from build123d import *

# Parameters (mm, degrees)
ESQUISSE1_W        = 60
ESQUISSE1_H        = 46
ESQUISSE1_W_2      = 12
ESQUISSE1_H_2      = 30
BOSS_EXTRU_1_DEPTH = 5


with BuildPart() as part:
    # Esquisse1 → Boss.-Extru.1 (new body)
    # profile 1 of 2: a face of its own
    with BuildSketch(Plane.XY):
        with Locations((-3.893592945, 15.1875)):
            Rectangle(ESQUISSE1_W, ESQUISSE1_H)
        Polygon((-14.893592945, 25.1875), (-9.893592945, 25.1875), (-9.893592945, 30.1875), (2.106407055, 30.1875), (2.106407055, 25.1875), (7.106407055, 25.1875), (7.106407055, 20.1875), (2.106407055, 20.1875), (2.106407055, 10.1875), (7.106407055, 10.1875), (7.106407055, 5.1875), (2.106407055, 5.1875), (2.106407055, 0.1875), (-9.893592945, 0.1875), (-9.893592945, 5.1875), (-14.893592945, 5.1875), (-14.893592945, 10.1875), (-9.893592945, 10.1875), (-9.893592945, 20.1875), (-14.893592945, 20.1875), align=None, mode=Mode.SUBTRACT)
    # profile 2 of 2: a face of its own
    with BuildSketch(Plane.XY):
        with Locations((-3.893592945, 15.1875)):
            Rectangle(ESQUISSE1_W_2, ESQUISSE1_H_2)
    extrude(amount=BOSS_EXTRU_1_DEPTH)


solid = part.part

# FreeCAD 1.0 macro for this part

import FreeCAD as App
import Part
import Sketcher

V = App.Vector
Q = App.Units.Quantity


def add_polygon(sketch, points):
    """Adds a closed chain of lines whose ends are joined by coincident constraints."""
    first, n = sketch.GeometryCount, len(points)
    for a, b in zip(points, points[1:] + points[:1]):
        sketch.addGeometry(Part.LineSegment(App.Vector(*a, 0), App.Vector(*b, 0)), False)
    for i in range(n):
        sketch.addConstraint(Sketcher.Constraint("Coincident", first + i, 2, first + (i + 1) % n, 1))

doc = App.newDocument("Part")
body = doc.addObject("PartDesign::Body", "Body")

sketch1 = doc.addObject("Sketcher::SketchObject", "Sketch")
body.addObject(sketch1)
sketch1.AttachmentSupport = (doc.XY_Plane, [""])
sketch1.MapMode = "FlatFace"
add_polygon(sketch1, [(-34, 38), (-34, -8), (26, -8), (26, 38)])
add_polygon(sketch1, [(-15, 20), (-15, 25), (-10, 25), (-10, 20)])
add_polygon(sketch1, [(-15, 10), (-10, 10), (-10, 5), (-15, 5)])
add_polygon(sketch1, [(7, 5), (2, 5), (2, 10), (7, 10)])
add_polygon(sketch1, [(7, 20), (2, 20), (2, 25), (7, 25)])
sketch1.addConstraint([
    Sketcher.Constraint("Vertical", 0),
    Sketcher.Constraint("Horizontal", 1),
    Sketcher.Constraint("Vertical", 2),
    Sketcher.Constraint("Horizontal", 3),
    Sketcher.Constraint("Vertical", 4),
    Sketcher.Constraint("Horizontal", 5),
    Sketcher.Constraint("Vertical", 6),
    Sketcher.Constraint("Horizontal", 7),
    Sketcher.Constraint("Horizontal", 8),
    Sketcher.Constraint("Vertical", 9),
    Sketcher.Constraint("Horizontal", 10),
    Sketcher.Constraint("Vertical", 11),
    Sketcher.Constraint("Horizontal", 12),
    Sketcher.Constraint("Vertical", 13),
    Sketcher.Constraint("Horizontal", 14),
    Sketcher.Constraint("Vertical", 15),
    Sketcher.Constraint("Horizontal", 16),
    Sketcher.Constraint("Vertical", 17),
    Sketcher.Constraint("Horizontal", 18),
    Sketcher.Constraint("Vertical", 19),
    Sketcher.Constraint("Horizontal", 10, 2, 12, 2),
    Sketcher.Constraint("Horizontal", 11, 2, 13, 2),
    Sketcher.Constraint("Horizontal", 7, 2, 16, 2),
    Sketcher.Constraint("Horizontal", 5, 2, 17, 2),
    Sketcher.Constraint("Vertical", 6, 2, 8, 2),
    Sketcher.Constraint("Vertical", 7, 2, 10, 2),
    Sketcher.Constraint("Vertical", 13, 2, 16, 2),
    Sketcher.Constraint("Vertical", 15, 2, 18, 2),
    Sketcher.Constraint("Equal", 10, 12),
    Sketcher.Constraint("Equal", 18, 4),
    Sketcher.Constraint("Equal", 6, 9),
    Sketcher.Constraint("DistanceX", 1, 1, 1, 2, Q("60 mm")),
    Sketcher.Constraint("DistanceX", 5, 1, 5, 2, Q("5 mm")),
    Sketcher.Constraint("DistanceY", 0, 2, 0, 1, Q("46 mm")),
    Sketcher.Constraint("DistanceX", 3, 2, 4, 2, Q("19 mm")),
    Sketcher.Constraint("DistanceY", 4, 2, 3, 2, Q("13 mm")),
    Sketcher.Constraint("DistanceY", 8, 2, 6, 2, Q("10 mm")),
    Sketcher.Constraint("DistanceX", 9, 2, 12, 2, Q("12 mm")),
    Sketcher.Constraint("DistanceY", 0, 2, -1, 1, Q("7.8125 mm")),
    Sketcher.Constraint("DistanceX", 0, 2, -1, 1, Q("33.893593 mm")),
])
pad1 = doc.addObject("PartDesign::Pad", "Pad")
body.addObject(pad1)
pad1.Profile = sketch1
pad1.Length = 5

doc.recompute()
